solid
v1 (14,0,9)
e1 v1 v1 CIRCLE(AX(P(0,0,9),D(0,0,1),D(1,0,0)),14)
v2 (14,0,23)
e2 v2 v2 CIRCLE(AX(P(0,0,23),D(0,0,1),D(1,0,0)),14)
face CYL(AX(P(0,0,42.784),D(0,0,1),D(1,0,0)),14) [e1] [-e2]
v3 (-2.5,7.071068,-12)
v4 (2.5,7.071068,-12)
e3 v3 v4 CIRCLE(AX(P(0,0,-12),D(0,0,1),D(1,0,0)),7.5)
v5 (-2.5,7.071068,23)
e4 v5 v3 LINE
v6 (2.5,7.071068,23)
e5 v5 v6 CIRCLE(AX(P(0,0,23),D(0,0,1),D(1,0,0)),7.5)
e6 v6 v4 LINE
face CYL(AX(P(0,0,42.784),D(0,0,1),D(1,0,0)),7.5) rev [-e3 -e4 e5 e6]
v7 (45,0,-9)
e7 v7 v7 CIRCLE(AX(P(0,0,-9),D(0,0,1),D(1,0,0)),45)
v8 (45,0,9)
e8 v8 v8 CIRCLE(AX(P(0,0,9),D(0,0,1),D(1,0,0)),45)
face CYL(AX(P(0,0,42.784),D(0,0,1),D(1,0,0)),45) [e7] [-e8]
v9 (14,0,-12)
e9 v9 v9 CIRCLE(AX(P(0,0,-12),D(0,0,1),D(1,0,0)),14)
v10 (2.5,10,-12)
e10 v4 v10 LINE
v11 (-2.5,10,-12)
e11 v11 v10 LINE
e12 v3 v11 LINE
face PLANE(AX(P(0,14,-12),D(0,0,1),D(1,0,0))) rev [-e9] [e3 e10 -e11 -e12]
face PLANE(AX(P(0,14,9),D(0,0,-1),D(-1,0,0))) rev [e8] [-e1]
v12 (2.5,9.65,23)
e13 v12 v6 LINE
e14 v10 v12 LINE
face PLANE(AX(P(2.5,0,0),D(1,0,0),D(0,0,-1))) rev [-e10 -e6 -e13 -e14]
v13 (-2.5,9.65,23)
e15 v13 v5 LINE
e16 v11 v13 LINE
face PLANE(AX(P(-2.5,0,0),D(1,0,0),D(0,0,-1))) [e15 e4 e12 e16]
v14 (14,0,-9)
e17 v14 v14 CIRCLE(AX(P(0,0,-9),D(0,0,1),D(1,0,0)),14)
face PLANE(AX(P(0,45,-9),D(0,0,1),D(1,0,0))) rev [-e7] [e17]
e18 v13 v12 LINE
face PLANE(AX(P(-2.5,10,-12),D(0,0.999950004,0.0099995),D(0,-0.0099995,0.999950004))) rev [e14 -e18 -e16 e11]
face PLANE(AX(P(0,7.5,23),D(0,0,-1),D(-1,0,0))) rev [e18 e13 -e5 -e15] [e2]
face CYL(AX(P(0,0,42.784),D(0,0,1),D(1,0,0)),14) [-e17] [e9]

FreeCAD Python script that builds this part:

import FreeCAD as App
import Part
import Sketcher
Q = App.Units.Quantity


def add_polygon(sketch, points):
    """Adds a closed chain of lines whose ends are joined by coincident constraints."""
    first, n = sketch.GeometryCount, len(points)
    for a, b in zip(points, points[1:] + points[:1]):
        sketch.addGeometry(Part.LineSegment(App.Vector(*a, 0), App.Vector(*b, 0)), False)
    for i in range(n):
        sketch.addConstraint(Sketcher.Constraint("Coincident", first + i, 2, first + (i + 1) % n, 1))

doc = App.newDocument("Part")
body = doc.addObject("PartDesign::Body", "Body")

# Sketch on YZ plane
sketch1 = doc.addObject("Sketcher::SketchObject", "Sketch")
body.addObject(sketch1)
sketch1.AttachmentSupport = (doc.YZ_Plane, [""])
sketch1.MapMode = "FlatFace"
add_polygon(sketch1, [(14, 23), (7.5, 23), (7.5, -12), (14, -12), (14, -9), (45, -9), (45, 9), (14, 9)])  # lines 0-7
sketch1.addConstraint([
    Sketcher.Constraint("Horizontal", 0),
    Sketcher.Constraint("Vertical", 1),
    Sketcher.Constraint("Horizontal", 2),
    Sketcher.Constraint("Vertical", 3),
    Sketcher.Constraint("Horizontal", 4),
    Sketcher.Constraint("Vertical", 5),
    Sketcher.Constraint("Horizontal", 6),
    Sketcher.Constraint("Vertical", 7),
    Sketcher.Constraint("Symmetric", 3, 2, 6, 2, -1),
    Sketcher.Constraint("DistanceX", 4, 1, 4, 2, Q("31 mm")),
    Sketcher.Constraint("DistanceY", 1, 2, 1, 1, Q("35 mm")),
    Sketcher.Constraint("DistanceY", 3, 1, 3, 2, Q("3 mm")),
    Sketcher.Constraint("DistanceY", 5, 1, 5, 2, Q("18 mm")),
    Sketcher.Constraint("DistanceX", 0, 2, 0, 1, Q("6.5 mm")),
    Sketcher.Constraint("DistanceX", -1, 1, 2, 2, Q("14 mm")),
])
revolution = doc.addObject("PartDesign::Revolution", "Revolution")
body.addObject(revolution)
revolution.Profile = sketch1
revolution.ReferenceAxis = (sketch1, ["V_Axis"])
revolution.Angle = 360

# Sketch on YZ plane
sketch2 = doc.addObject("Sketcher::SketchObject", "Sketch001")
body.addObject(sketch2)
sketch2.AttachmentSupport = (doc.YZ_Plane, [""])
sketch2.MapMode = "FlatFace"
add_polygon(sketch2, [(9.65, 23), (5, 23), (5, -12), (10, -12)])  # lines 0-3
sketch2.addConstraint([
    Sketcher.Constraint("Horizontal", 0),
    Sketcher.Constraint("Vertical", 1),
    Sketcher.Constraint("Horizontal", 2),
    Sketcher.Constraint("DistanceX", 2, 1, 2, 2, Q("5 mm")),
    Sketcher.Constraint("DistanceY", 1, 2, 1, 1, Q("35 mm")),
    Sketcher.Constraint("DistanceX", -1, 1, 0, 2, Q("5 mm")),
    Sketcher.Constraint("DistanceY", -1, 1, 0, 2, Q("23 mm")),
    Sketcher.Constraint("DistanceX", 0, 2, 0, 1, Q("4.65 mm")),
])
pocket1 = doc.addObject("PartDesign::Pocket", "Pocket")
body.addObject(pocket1)
pocket1.Profile = sketch2
pocket1.Length = 5
pocket1.Midplane = True

doc.recompute()
